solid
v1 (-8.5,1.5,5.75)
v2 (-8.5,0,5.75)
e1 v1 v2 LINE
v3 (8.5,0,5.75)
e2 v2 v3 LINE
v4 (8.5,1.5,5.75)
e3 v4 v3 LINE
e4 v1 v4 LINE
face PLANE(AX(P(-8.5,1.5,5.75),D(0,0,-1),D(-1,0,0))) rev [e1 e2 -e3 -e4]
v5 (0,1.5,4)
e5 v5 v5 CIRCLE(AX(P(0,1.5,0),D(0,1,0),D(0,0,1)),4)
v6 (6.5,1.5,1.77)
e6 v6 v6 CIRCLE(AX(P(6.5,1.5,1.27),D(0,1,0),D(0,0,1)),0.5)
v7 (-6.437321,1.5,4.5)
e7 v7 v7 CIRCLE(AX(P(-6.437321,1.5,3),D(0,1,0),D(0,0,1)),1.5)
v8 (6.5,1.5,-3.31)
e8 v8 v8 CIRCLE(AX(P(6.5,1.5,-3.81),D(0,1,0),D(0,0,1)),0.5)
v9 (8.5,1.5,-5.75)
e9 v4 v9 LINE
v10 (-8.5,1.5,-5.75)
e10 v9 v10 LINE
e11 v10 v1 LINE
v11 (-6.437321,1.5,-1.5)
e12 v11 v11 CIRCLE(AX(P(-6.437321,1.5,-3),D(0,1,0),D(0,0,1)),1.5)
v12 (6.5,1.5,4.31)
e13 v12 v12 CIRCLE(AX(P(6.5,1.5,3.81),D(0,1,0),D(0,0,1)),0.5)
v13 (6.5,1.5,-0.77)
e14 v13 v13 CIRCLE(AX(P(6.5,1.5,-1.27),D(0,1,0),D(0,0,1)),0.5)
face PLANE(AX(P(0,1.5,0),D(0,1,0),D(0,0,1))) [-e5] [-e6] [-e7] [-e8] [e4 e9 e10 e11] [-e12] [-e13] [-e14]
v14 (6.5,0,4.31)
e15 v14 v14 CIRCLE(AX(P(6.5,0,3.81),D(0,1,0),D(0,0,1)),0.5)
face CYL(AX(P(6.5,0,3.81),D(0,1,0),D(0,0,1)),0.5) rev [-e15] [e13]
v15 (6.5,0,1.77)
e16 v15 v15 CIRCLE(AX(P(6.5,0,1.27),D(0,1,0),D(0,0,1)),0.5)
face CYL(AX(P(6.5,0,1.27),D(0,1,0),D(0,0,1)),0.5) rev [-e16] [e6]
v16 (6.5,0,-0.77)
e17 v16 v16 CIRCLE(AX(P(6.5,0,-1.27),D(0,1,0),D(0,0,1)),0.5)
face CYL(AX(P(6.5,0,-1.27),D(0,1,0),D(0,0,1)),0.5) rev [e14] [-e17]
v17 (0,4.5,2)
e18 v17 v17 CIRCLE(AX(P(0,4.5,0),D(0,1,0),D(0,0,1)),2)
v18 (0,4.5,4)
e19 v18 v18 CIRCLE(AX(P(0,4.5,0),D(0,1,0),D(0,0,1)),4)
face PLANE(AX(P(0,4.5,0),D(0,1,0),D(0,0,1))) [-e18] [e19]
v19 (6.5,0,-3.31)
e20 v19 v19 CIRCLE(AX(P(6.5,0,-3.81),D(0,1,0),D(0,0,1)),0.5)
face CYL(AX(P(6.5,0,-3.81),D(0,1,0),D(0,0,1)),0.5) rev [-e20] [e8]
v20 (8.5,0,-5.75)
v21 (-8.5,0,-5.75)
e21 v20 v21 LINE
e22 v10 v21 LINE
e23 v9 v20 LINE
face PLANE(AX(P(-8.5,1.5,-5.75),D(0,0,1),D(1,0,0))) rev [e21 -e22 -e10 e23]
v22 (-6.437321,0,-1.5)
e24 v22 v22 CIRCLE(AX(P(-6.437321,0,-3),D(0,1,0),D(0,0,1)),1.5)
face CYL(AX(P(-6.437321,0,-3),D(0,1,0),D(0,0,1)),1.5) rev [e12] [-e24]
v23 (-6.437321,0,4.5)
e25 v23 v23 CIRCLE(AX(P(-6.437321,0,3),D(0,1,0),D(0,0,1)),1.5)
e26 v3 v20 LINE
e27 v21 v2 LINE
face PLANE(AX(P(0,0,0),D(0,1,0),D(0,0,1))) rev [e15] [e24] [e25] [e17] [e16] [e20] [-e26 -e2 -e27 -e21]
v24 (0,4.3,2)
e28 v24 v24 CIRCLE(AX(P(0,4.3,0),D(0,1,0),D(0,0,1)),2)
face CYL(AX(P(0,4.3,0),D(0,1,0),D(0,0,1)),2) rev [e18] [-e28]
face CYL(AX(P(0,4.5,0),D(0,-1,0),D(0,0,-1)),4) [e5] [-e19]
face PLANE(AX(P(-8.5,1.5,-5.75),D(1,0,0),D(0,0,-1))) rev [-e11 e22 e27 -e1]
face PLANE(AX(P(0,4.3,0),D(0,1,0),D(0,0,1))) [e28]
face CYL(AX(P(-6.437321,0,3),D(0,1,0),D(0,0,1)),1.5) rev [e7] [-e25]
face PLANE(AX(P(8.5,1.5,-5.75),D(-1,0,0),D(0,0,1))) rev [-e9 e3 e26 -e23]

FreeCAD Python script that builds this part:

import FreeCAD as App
import Part
import Sketcher

V = App.Vector
Q = App.Units.Quantity

doc = App.newDocument("Part")
body = doc.addObject("PartDesign::Body", "Body")

sketch1 = body.newObject("Sketcher::SketchObject", "Sketch")
sketch1.AttachmentSupport = (doc.getObject("XZ_Plane"), [""])
sketch1.MapMode = "FlatFace"
sketch1.addGeometry([
    Part.LineSegment(V(-8.5, -5.75, 0), V(-8.5, 5.75, 0)),
    Part.LineSegment(V(-8.5, 5.75, 0), V(8.5, 5.75, 0)),
    Part.LineSegment(V(8.5, 5.75, 0), V(8.5, -5.75, 0)),
    Part.LineSegment(V(8.5, -5.75, 0), V(-8.5, -5.75, 0)),
], False)
sketch1.addConstraint([
    Sketcher.Constraint("Coincident", 0, 2, 1, 1),
    Sketcher.Constraint("Coincident", 1, 2, 2, 1),
    Sketcher.Constraint("Coincident", 2, 2, 3, 1),
    Sketcher.Constraint("Coincident", 3, 2, 0, 1),
    Sketcher.Constraint("Vertical", 0),
    Sketcher.Constraint("Horizontal", 1),
    Sketcher.Constraint("Vertical", 2),
    Sketcher.Constraint("Horizontal", 3),
    Sketcher.Constraint("Symmetric", 0, 2, 2, 2, -1, 1),
    Sketcher.Constraint("DistanceX", 1, 1, 1, 2, Q("17 mm")),
    Sketcher.Constraint("DistanceY", 0, 1, 0, 2, Q("11.5 mm")),
])
pad1 = body.newObject("PartDesign::Pad", "Pad")
pad1.Profile = sketch1
pad1.Length = 1.5
pad1.Reversed = True

sketch2 = body.newObject("Sketcher::SketchObject", "Sketch001")
sketch2.AttachmentSupport = (doc.getObject("XZ_Plane"), [""])
sketch2.MapMode = "FlatFace"
sketch2.AttachmentOffset = App.Placement(V(0, 0, -1.5), App.Rotation())
sketch2.addGeometry(Part.Circle(V(0, 0, 0), V(0, 0, 1), 4), False)
sketch2.addConstraint([
    Sketcher.Constraint("Coincident", 0, 3, -1, 1),
    Sketcher.Constraint("Diameter", 0, Q("8 mm")),
])
pad2 = body.newObject("PartDesign::Pad", "Pad001")
pad2.Profile = sketch2
pad2.Length = 3
pad2.Reversed = True

sketch3 = body.newObject("Sketcher::SketchObject", "Sketch002")
sketch3.AttachmentSupport = (doc.getObject("XZ_Plane"), [""])
sketch3.MapMode = "FlatFace"
sketch3.AttachmentOffset = App.Placement(V(0, 0, -4.5), App.Rotation())
sketch3.addGeometry(Part.Circle(V(0, 0, 0), V(0, 0, 1), 2), False)
sketch3.addConstraint([
    Sketcher.Constraint("Coincident", 0, 3, -1, 1),
    Sketcher.Constraint("Diameter", 0, Q("4 mm")),
])
pocket1 = body.newObject("PartDesign::Pocket", "Pocket")
pocket1.Profile = sketch3
pocket1.Length = 0.2
pocket1.Reversed = True

sketch4 = body.newObject("Sketcher::SketchObject", "Sketch003")
sketch4.AttachmentSupport = (doc.getObject("XZ_Plane"), [""])
sketch4.MapMode = "FlatFace"
sketch4.AttachmentOffset = App.Placement(V(0, 0, -1.5), App.Rotation())
sketch4.addGeometry([
    Part.Circle(V(6.5, -3.81, 0), V(0, 0, 1), 0.5),
    Part.Circle(V(6.5, -1.27, 0), V(0, 0, 1), 0.5),
    Part.Circle(V(6.5, 1.27, 0), V(0, 0, 1), 0.5),
    Part.Circle(V(6.5, 3.81, 0), V(0, 0, 1), 0.5),
    Part.Circle(V(-6.437321, -3, 0), V(0, 0, 1), 1.5),
    Part.Circle(V(-6.437321, 3, 0), V(0, 0, 1), 1.5),
], False)
sketch4.addConstraint([
    Sketcher.Constraint("Equal", 0, 1),
    Sketcher.Constraint("Equal", 1, 2),
    Sketcher.Constraint("Equal", 2, 3),
    Sketcher.Constraint("Equal", 4, 5),
    Sketcher.Constraint("Symmetric", 1, 3, 2, 3, -1),
    Sketcher.Constraint("Symmetric", 0, 3, 3, 3, -1),
    Sketcher.Constraint("Symmetric", 4, 3, 5, 3, -1),
    Sketcher.Constraint("Vertical", 0, 3, 1, 3),
    Sketcher.Constraint("Diameter", 0, Q("1 mm")),
    Sketcher.Constraint("Diameter", 4, Q("3 mm")),
    Sketcher.Constraint("DistanceY", 4, 3, -1, 1, Q("3 mm")),
    Sketcher.Constraint("DistanceX", -1, 1, 0, 3, Q("6.5 mm")),
    Sketcher.Constraint("DistanceY", 0, 3, -1, 1, Q("3.81 mm")),
    Sketcher.Constraint("DistanceY", 1, 3, -1, 1, Q("1.27 mm")),
    Sketcher.Constraint("DistanceX", 4, 3, -1, 1, Q("6.437321 mm")),
])
pocket2 = body.newObject("PartDesign::Pocket", "Pocket001")
pocket2.Profile = sketch4
pocket2.Type = "ThroughAll"
pocket2.Reversed = True

doc.recompute()
